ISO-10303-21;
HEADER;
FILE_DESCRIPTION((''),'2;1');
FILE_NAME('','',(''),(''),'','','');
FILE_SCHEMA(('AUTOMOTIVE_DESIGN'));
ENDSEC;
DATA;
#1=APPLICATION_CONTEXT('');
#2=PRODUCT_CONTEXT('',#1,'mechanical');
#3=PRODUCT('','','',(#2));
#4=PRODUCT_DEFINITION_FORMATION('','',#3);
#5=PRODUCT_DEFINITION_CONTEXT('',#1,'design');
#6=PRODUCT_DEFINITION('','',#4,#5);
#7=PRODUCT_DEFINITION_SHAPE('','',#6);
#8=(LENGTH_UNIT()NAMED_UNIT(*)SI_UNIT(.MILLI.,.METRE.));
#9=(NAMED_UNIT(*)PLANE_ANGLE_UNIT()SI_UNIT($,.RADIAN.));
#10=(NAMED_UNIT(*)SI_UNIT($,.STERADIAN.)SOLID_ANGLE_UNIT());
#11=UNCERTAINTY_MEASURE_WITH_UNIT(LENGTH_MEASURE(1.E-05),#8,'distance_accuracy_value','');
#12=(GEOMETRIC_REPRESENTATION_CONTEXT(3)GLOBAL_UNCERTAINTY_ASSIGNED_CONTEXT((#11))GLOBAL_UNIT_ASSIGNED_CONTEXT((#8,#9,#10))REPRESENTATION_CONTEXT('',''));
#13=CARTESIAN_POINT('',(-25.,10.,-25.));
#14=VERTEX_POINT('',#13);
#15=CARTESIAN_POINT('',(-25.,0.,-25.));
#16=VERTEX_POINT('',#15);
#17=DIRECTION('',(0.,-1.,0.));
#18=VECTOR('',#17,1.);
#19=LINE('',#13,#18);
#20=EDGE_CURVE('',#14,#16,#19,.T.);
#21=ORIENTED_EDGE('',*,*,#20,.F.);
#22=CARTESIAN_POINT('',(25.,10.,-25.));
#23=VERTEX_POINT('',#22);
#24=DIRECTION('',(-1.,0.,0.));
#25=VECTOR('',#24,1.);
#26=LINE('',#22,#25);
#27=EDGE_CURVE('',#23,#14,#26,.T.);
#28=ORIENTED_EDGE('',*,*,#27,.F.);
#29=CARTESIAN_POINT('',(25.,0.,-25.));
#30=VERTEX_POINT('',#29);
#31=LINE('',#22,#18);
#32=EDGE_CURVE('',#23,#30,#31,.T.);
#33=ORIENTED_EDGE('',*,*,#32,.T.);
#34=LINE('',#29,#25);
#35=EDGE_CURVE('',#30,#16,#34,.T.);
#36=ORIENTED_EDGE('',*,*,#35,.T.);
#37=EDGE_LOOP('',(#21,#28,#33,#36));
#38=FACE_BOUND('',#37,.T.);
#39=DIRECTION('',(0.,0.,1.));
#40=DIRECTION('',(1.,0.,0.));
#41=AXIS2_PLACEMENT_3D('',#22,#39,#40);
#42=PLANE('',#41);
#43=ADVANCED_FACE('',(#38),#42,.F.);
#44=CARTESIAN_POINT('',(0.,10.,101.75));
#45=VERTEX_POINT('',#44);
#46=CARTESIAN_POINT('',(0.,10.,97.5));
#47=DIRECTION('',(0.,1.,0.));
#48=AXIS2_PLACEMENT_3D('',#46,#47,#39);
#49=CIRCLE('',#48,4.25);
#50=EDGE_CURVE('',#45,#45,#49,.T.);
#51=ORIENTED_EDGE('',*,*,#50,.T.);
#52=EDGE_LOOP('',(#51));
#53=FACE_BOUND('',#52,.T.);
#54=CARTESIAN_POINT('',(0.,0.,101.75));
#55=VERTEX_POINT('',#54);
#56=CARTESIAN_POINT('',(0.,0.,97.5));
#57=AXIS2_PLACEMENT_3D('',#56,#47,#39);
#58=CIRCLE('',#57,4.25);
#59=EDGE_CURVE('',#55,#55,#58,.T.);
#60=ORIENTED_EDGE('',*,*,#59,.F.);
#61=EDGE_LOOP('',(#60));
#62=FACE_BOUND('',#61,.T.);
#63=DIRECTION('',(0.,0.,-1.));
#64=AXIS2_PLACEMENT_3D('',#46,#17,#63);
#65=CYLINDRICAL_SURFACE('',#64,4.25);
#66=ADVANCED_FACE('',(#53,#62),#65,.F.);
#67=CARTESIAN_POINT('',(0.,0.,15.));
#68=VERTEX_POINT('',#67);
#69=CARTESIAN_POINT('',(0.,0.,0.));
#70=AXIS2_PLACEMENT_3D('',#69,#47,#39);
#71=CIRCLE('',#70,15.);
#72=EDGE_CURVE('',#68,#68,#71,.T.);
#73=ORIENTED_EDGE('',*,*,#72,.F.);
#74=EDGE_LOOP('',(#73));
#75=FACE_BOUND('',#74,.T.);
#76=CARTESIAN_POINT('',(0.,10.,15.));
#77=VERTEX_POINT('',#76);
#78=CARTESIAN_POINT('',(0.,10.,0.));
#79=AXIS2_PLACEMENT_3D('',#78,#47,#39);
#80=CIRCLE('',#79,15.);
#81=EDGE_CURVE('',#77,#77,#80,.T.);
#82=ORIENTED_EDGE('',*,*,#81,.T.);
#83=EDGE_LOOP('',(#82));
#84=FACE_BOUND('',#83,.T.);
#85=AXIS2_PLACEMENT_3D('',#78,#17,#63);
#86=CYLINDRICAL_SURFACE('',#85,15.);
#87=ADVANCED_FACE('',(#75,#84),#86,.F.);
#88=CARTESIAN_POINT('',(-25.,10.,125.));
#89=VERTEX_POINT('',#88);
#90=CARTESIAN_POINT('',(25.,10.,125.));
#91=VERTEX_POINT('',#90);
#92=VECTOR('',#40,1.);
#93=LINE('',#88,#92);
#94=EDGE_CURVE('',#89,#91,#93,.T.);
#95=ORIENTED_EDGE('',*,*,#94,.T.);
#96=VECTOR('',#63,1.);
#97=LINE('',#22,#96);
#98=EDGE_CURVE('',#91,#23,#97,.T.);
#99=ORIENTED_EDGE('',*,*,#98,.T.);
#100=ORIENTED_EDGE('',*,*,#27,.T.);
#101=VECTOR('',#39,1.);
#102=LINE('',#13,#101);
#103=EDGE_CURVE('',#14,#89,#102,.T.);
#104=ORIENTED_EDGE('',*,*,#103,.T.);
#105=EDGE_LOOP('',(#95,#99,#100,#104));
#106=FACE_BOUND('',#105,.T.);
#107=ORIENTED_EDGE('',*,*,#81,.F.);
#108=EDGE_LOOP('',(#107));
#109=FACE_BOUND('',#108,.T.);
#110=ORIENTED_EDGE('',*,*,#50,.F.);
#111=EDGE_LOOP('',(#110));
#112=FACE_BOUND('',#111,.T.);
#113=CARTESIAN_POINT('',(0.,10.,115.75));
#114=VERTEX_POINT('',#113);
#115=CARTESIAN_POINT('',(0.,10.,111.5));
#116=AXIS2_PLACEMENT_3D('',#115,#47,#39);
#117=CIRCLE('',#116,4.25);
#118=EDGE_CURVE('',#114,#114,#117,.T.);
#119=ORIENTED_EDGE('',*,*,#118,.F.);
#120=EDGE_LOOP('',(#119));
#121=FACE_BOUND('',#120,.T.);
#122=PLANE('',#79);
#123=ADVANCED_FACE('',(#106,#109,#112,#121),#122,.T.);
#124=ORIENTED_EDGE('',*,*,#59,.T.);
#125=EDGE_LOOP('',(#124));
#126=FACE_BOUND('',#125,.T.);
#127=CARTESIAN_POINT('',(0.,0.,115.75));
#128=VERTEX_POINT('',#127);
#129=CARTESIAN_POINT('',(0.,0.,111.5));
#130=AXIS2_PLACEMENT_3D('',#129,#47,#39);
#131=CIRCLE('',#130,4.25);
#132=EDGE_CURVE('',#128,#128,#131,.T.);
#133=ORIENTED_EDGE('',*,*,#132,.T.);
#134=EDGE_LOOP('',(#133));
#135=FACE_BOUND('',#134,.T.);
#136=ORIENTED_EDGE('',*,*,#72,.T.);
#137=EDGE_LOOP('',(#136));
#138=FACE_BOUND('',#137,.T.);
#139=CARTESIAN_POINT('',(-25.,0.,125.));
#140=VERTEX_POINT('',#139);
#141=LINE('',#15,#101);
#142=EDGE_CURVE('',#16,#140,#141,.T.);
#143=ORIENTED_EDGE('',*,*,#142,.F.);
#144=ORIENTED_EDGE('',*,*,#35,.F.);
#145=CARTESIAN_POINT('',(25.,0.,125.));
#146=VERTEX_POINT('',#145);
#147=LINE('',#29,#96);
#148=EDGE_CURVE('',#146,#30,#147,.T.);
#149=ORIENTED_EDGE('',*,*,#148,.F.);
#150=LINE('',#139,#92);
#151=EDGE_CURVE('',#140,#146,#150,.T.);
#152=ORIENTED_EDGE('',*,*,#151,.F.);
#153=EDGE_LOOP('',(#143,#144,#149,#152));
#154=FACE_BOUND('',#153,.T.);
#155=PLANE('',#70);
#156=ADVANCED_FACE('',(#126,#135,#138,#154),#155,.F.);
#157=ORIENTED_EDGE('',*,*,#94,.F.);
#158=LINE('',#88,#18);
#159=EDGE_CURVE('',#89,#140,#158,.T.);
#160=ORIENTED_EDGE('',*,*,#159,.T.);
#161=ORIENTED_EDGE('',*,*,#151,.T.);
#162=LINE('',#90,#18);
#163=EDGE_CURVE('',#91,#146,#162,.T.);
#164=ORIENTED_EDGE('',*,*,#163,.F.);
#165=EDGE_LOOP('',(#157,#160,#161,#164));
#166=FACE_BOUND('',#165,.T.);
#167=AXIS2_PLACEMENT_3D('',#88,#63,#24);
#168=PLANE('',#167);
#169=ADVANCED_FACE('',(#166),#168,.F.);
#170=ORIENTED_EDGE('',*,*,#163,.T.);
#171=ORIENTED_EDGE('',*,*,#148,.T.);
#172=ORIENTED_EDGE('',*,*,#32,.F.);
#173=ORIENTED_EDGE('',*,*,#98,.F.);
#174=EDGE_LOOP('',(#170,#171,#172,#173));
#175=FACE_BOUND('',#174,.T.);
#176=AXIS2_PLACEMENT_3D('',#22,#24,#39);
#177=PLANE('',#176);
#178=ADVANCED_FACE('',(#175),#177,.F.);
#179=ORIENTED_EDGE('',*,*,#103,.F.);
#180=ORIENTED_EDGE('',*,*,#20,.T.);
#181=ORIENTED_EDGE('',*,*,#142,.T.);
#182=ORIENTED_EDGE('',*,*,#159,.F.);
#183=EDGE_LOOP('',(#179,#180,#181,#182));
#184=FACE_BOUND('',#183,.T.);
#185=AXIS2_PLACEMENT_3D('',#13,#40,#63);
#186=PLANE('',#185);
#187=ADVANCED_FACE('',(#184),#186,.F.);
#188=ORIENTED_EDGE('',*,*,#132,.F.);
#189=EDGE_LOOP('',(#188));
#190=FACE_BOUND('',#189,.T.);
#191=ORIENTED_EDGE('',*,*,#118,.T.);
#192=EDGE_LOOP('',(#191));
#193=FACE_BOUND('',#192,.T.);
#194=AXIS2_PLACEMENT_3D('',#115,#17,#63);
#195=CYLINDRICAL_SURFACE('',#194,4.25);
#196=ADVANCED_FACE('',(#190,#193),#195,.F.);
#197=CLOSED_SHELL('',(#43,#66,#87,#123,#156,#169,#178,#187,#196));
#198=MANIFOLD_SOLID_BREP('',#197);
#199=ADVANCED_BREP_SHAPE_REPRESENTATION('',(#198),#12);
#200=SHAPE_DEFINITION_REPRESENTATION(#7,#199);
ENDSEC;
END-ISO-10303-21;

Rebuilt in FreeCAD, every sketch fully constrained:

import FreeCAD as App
import Part
import Sketcher

doc = App.newDocument("Part")
body = doc.addObject("PartDesign::Body", "Body")

# Sketch on XZ plane
sketch1 = body.newObject("Sketcher::SketchObject", "Sketch")
sketch1.AttachmentSupport = (doc.getObject("XZ_Plane"), [""])
sketch1.MapMode = "FlatFace"
sketch1.addGeometry([
    Part.LineSegment(App.Vector(-25, -25, 0), App.Vector(-25, 125, 0)),  # 0
    Part.LineSegment(App.Vector(-25, 125, 0), App.Vector(25, 125, 0)),  # 1
    Part.LineSegment(App.Vector(25, 125, 0), App.Vector(25, -25, 0)),  # 2
    Part.LineSegment(App.Vector(25, -25, 0), App.Vector(-25, -25, 0)),  # 3
    Part.Circle(App.Vector(0, 0, 0), App.Vector(0, 0, 1), 15),  # 4
], False)
sketch1.addConstraint([
    Sketcher.Constraint("Coincident", 0, 2, 1, 1),
    Sketcher.Constraint("Coincident", 1, 2, 2, 1),
    Sketcher.Constraint("Coincident", 2, 2, 3, 1),
    Sketcher.Constraint("Coincident", 3, 2, 0, 1),
    Sketcher.Constraint("Vertical", 0),
    Sketcher.Constraint("Horizontal", 1),
    Sketcher.Constraint("Vertical", 2),
    Sketcher.Constraint("Horizontal", 3),
    Sketcher.Constraint("Coincident", 4, 3, -1, 1),
    Sketcher.Constraint("Diameter", 4, 30.0),
    Sketcher.Constraint("DistanceX", 1, 1, 1, 2, 50.0),
    Sketcher.Constraint("DistanceY", 0, 1, 0, 2, 150.0),
    Sketcher.Constraint("DistanceX", 0, 2, -1, 1, 25.0),
    Sketcher.Constraint("DistanceY", -1, 1, 0, 2, 125.0),
])
pad1 = body.newObject("PartDesign::Pad", "Pad")
pad1.Profile = sketch1
pad1.Length = 10
pad1.Reversed = True

# Sketch on XZ plane
sketch2 = body.newObject("Sketcher::SketchObject", "Sketch001")
sketch2.AttachmentSupport = (doc.getObject("XZ_Plane"), [""])
sketch2.MapMode = "FlatFace"
sketch2.addGeometry([
    Part.Circle(App.Vector(0, 111.5, 0), App.Vector(0, 0, 1), 4.25),
    Part.Circle(App.Vector(0, 97.5, 0), App.Vector(0, 0, 1), 4.25),
], False)
sketch2.addConstraint([
    Sketcher.Constraint("Equal", 0, 1),
    Sketcher.Constraint("PointOnObject", 0, 3, -2),
    Sketcher.Constraint("PointOnObject", 1, 3, -2),
    Sketcher.Constraint("Diameter", 0, 8.5),
    Sketcher.Constraint("DistanceY", 1, 3, 0, 3, 14.0),
    Sketcher.Constraint("DistanceY", -1, 1, 0, 3, 111.5),
])
pocket1 = body.newObject("PartDesign::Pocket", "Pocket")
pocket1.Profile = sketch2
pocket1.Length = 10

doc.recompute()
